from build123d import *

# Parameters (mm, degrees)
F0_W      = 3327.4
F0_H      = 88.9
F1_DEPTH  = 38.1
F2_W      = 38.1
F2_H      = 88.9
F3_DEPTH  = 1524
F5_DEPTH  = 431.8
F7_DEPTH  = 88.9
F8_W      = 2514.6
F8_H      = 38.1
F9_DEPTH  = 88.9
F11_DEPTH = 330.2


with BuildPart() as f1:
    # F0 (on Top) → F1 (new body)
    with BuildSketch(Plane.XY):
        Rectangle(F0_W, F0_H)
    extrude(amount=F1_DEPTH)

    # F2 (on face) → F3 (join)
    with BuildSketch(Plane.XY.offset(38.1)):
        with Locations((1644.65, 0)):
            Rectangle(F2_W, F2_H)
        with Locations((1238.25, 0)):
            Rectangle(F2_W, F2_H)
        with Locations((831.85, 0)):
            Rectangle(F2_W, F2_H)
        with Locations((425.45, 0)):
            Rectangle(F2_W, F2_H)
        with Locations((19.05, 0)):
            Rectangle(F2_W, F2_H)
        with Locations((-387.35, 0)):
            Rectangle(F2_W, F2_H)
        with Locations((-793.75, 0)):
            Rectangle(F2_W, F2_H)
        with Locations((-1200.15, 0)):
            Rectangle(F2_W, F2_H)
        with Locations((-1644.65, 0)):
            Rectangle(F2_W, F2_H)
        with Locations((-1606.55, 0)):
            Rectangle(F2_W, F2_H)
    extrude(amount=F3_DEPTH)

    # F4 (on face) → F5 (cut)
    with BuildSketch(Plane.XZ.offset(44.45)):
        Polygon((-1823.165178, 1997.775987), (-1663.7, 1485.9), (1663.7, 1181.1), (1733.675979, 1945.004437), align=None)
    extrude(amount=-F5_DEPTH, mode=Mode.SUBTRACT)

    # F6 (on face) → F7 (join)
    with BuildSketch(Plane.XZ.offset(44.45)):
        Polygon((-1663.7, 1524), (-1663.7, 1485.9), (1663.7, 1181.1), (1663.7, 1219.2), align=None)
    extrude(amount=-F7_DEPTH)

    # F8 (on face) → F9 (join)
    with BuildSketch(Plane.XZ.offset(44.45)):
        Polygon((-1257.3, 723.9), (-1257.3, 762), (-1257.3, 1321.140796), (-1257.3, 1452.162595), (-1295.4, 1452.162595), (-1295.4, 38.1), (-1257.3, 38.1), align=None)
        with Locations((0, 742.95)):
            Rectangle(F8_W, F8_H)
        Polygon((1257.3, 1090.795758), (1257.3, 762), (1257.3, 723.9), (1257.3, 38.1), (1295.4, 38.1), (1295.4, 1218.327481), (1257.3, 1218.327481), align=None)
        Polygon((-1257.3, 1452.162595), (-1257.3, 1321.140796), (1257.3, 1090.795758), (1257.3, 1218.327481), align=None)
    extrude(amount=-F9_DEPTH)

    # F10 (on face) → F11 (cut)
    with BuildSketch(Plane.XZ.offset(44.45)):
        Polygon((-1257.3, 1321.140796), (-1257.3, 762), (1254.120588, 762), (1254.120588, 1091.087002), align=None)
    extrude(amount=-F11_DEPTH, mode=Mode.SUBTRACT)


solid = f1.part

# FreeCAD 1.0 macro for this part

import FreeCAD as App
import Part
import Sketcher

V = App.Vector
Q = App.Units.Quantity

doc = App.newDocument("Part")
body = doc.addObject("PartDesign::Body", "Body")

# Sketch on XY plane
sketch1 = body.newObject("Sketcher::SketchObject", "Sketch")
sketch1.AttachmentSupport = (doc.getObject("XY_Plane"), [""])
sketch1.MapMode = "FlatFace"
sketch1.addGeometry(Part.LineSegment(V(-1663.7, 44.45, 0), V(-1663.7, -44.45, 0)), False)
sketch1.addGeometry(Part.LineSegment(V(-1663.7, -44.45, 0), V(1663.7, -44.45, 0)), False)
sketch1.addGeometry(Part.LineSegment(V(1663.7, -44.45, 0), V(1663.7, 44.45, 0)), False)
sketch1.addGeometry(Part.LineSegment(V(1663.7, 44.45, 0), V(-1663.7, 44.45, 0)), False)
sketch1.addConstraint(Sketcher.Constraint("Coincident", 0, 2, 1, 1))
sketch1.addConstraint(Sketcher.Constraint("Coincident", 1, 2, 2, 1))
sketch1.addConstraint(Sketcher.Constraint("Coincident", 2, 2, 3, 1))
sketch1.addConstraint(Sketcher.Constraint("Coincident", 3, 2, 0, 1))
sketch1.addConstraint(Sketcher.Constraint("Vertical", 0))
sketch1.addConstraint(Sketcher.Constraint("Horizontal", 1))
sketch1.addConstraint(Sketcher.Constraint("Vertical", 2))
sketch1.addConstraint(Sketcher.Constraint("Horizontal", 3))
sketch1.addConstraint(Sketcher.Constraint("Symmetric", 0, 2, 2, 2, -1, 1))
sketch1.addConstraint(Sketcher.Constraint("DistanceX", 1, 1, 1, 2, Q("131 in")))
sketch1.addConstraint(Sketcher.Constraint("DistanceY", 0, 2, 0, 1, Q("3.5 in")))
pad1 = body.newObject("PartDesign::Pad", "Pad")
pad1.Profile = sketch1
pad1.Length = Q("1.5 in")

# Sketch on XY plane
sketch2 = body.newObject("Sketcher::SketchObject", "Sketch001")
sketch2.AttachmentSupport = (doc.getObject("XY_Plane"), [""])
sketch2.MapMode = "FlatFace"
sketch2.AttachmentOffset = App.Placement(V(0, 0, 1.5 * 25.4), App.Rotation())
sketch2.addGeometry(Part.LineSegment(V(1625.6, 44.45, 0), V(1625.6, -44.45, 0)), False)
sketch2.addGeometry(Part.LineSegment(V(1625.6, -44.45, 0), V(1663.7, -44.45, 0)), False)
sketch2.addGeometry(Part.LineSegment(V(1663.7, -44.45, 0), V(1663.7, 44.45, 0)), False)
sketch2.addGeometry(Part.LineSegment(V(1663.7, 44.45, 0), V(1625.6, 44.45, 0)), False)
sketch2.addGeometry(Part.LineSegment(V(1219.2, 44.45, 0), V(1219.2, -44.45, 0)), False)
sketch2.addGeometry(Part.LineSegment(V(1219.2, -44.45, 0), V(1257.3, -44.45, 0)), False)
sketch2.addGeometry(Part.LineSegment(V(1257.3, -44.45, 0), V(1257.3, 44.45, 0)), False)
sketch2.addGeometry(Part.LineSegment(V(1257.3, 44.45, 0), V(1219.2, 44.45, 0)), False)
sketch2.addGeometry(Part.LineSegment(V(812.8, 44.45, 0), V(812.8, -44.45, 0)), False)
sketch2.addGeometry(Part.LineSegment(V(812.8, -44.45, 0), V(850.9, -44.45, 0)), False)
sketch2.addGeometry(Part.LineSegment(V(850.9, -44.45, 0), V(850.9, 44.45, 0)), False)
sketch2.addGeometry(Part.LineSegment(V(850.9, 44.45, 0), V(812.8, 44.45, 0)), False)
sketch2.addGeometry(Part.LineSegment(V(406.4, 44.45, 0), V(406.4, -44.45, 0)), False)
sketch2.addGeometry(Part.LineSegment(V(406.4, -44.45, 0), V(444.5, -44.45, 0)), False)
sketch2.addGeometry(Part.LineSegment(V(444.5, -44.45, 0), V(444.5, 44.45, 0)), False)
sketch2.addGeometry(Part.LineSegment(V(444.5, 44.45, 0), V(406.4, 44.45, 0)), False)
sketch2.addGeometry(Part.LineSegment(V(0, 44.45, 0), V(0, -44.45, 0)), False)
sketch2.addGeometry(Part.LineSegment(V(0, -44.45, 0), V(38.1, -44.45, 0)), False)
sketch2.addGeometry(Part.LineSegment(V(38.1, -44.45, 0), V(38.1, 44.45, 0)), False)
sketch2.addGeometry(Part.LineSegment(V(38.1, 44.45, 0), V(0, 44.45, 0)), False)
sketch2.addGeometry(Part.LineSegment(V(-406.4, 44.45, 0), V(-406.4, -44.45, 0)), False)
sketch2.addGeometry(Part.LineSegment(V(-406.4, -44.45, 0), V(-368.3, -44.45, 0)), False)
sketch2.addGeometry(Part.LineSegment(V(-368.3, -44.45, 0), V(-368.3, 44.45, 0)), False)
sketch2.addGeometry(Part.LineSegment(V(-368.3, 44.45, 0), V(-406.4, 44.45, 0)), False)
sketch2.addGeometry(Part.LineSegment(V(-812.8, 44.45, 0), V(-812.8, -44.45, 0)), False)
sketch2.addGeometry(Part.LineSegment(V(-812.8, -44.45, 0), V(-774.7, -44.45, 0)), False)
sketch2.addGeometry(Part.LineSegment(V(-774.7, -44.45, 0), V(-774.7, 44.45, 0)), False)
sketch2.addGeometry(Part.LineSegment(V(-774.7, 44.45, 0), V(-812.8, 44.45, 0)), False)
sketch2.addGeometry(Part.LineSegment(V(-1219.2, 44.45, 0), V(-1219.2, -44.45, 0)), False)
sketch2.addGeometry(Part.LineSegment(V(-1219.2, -44.45, 0), V(-1181.1, -44.45, 0)), False)
sketch2.addGeometry(Part.LineSegment(V(-1181.1, -44.45, 0), V(-1181.1, 44.45, 0)), False)
sketch2.addGeometry(Part.LineSegment(V(-1181.1, 44.45, 0), V(-1219.2, 44.45, 0)), False)
sketch2.addGeometry(Part.LineSegment(V(-1663.7, 44.45, 0), V(-1663.7, -44.45, 0)), False)
sketch2.addGeometry(Part.LineSegment(V(-1663.7, -44.45, 0), V(-1587.5, -44.45, 0)), False)
sketch2.addGeometry(Part.LineSegment(V(-1587.5, -44.45, 0), V(-1587.5, 44.45, 0)), False)
sketch2.addGeometry(Part.LineSegment(V(-1587.5, 44.45, 0), V(-1663.7, 44.45, 0)), False)
sketch2.addConstraint(Sketcher.Constraint("Coincident", 0, 2, 1, 1))
sketch2.addConstraint(Sketcher.Constraint("Coincident", 1, 2, 2, 1))
sketch2.addConstraint(Sketcher.Constraint("Coincident", 2, 2, 3, 1))
sketch2.addConstraint(Sketcher.Constraint("Coincident", 3, 2, 0, 1))
sketch2.addConstraint(Sketcher.Constraint("Coincident", 4, 2, 5, 1))
sketch2.addConstraint(Sketcher.Constraint("Coincident", 5, 2, 6, 1))
sketch2.addConstraint(Sketcher.Constraint("Coincident", 6, 2, 7, 1))
sketch2.addConstraint(Sketcher.Constraint("Coincident", 7, 2, 4, 1))
sketch2.addConstraint(Sketcher.Constraint("Coincident", 8, 2, 9, 1))
sketch2.addConstraint(Sketcher.Constraint("Coincident", 9, 2, 10, 1))
sketch2.addConstraint(Sketcher.Constraint("Coincident", 10, 2, 11, 1))
sketch2.addConstraint(Sketcher.Constraint("Coincident", 11, 2, 8, 1))
sketch2.addConstraint(Sketcher.Constraint("Coincident", 12, 2, 13, 1))
sketch2.addConstraint(Sketcher.Constraint("Coincident", 13, 2, 14, 1))
sketch2.addConstraint(Sketcher.Constraint("Coincident", 14, 2, 15, 1))
sketch2.addConstraint(Sketcher.Constraint("Coincident", 15, 2, 12, 1))
sketch2.addConstraint(Sketcher.Constraint("Coincident", 16, 2, 17, 1))
sketch2.addConstraint(Sketcher.Constraint("Coincident", 17, 2, 18, 1))
sketch2.addConstraint(Sketcher.Constraint("Coincident", 18, 2, 19, 1))
sketch2.addConstraint(Sketcher.Constraint("Coincident", 19, 2, 16, 1))
sketch2.addConstraint(Sketcher.Constraint("Coincident", 20, 2, 21, 1))
sketch2.addConstraint(Sketcher.Constraint("Coincident", 21, 2, 22, 1))
sketch2.addConstraint(Sketcher.Constraint("Coincident", 22, 2, 23, 1))
sketch2.addConstraint(Sketcher.Constraint("Coincident", 23, 2, 20, 1))
sketch2.addConstraint(Sketcher.Constraint("Coincident", 24, 2, 25, 1))
sketch2.addConstraint(Sketcher.Constraint("Coincident", 25, 2, 26, 1))
sketch2.addConstraint(Sketcher.Constraint("Coincident", 26, 2, 27, 1))
sketch2.addConstraint(Sketcher.Constraint("Coincident", 27, 2, 24, 1))
sketch2.addConstraint(Sketcher.Constraint("Coincident", 28, 2, 29, 1))
sketch2.addConstraint(Sketcher.Constraint("Coincident", 29, 2, 30, 1))
sketch2.addConstraint(Sketcher.Constraint("Coincident", 30, 2, 31, 1))
sketch2.addConstraint(Sketcher.Constraint("Coincident", 31, 2, 28, 1))
sketch2.addConstraint(Sketcher.Constraint("Coincident", 32, 2, 33, 1))
sketch2.addConstraint(Sketcher.Constraint("Coincident", 33, 2, 34, 1))
sketch2.addConstraint(Sketcher.Constraint("Coincident", 34, 2, 35, 1))
sketch2.addConstraint(Sketcher.Constraint("Coincident", 35, 2, 32, 1))
sketch2.addConstraint(Sketcher.Constraint("Vertical", 0))
sketch2.addConstraint(Sketcher.Constraint("Horizontal", 1))
sketch2.addConstraint(Sketcher.Constraint("Vertical", 2))
sketch2.addConstraint(Sketcher.Constraint("Horizontal", 3))
sketch2.addConstraint(Sketcher.Constraint("Vertical", 4))
sketch2.addConstraint(Sketcher.Constraint("Horizontal", 5))
sketch2.addConstraint(Sketcher.Constraint("Vertical", 6))
sketch2.addConstraint(Sketcher.Constraint("Horizontal", 7))
sketch2.addConstraint(Sketcher.Constraint("Vertical", 8))
sketch2.addConstraint(Sketcher.Constraint("Horizontal", 9))
sketch2.addConstraint(Sketcher.Constraint("Vertical", 10))
sketch2.addConstraint(Sketcher.Constraint("Horizontal", 11))
sketch2.addConstraint(Sketcher.Constraint("Vertical", 12))
sketch2.addConstraint(Sketcher.Constraint("Horizontal", 13))
sketch2.addConstraint(Sketcher.Constraint("Vertical", 14))
sketch2.addConstraint(Sketcher.Constraint("Horizontal", 15))
sketch2.addConstraint(Sketcher.Constraint("Vertical", 16))
sketch2.addConstraint(Sketcher.Constraint("Horizontal", 17))
sketch2.addConstraint(Sketcher.Constraint("Vertical", 18))
sketch2.addConstraint(Sketcher.Constraint("Horizontal", 19))
sketch2.addConstraint(Sketcher.Constraint("Vertical", 20))
sketch2.addConstraint(Sketcher.Constraint("Horizontal", 21))
sketch2.addConstraint(Sketcher.Constraint("Vertical", 22))
sketch2.addConstraint(Sketcher.Constraint("Horizontal", 23))
sketch2.addConstraint(Sketcher.Constraint("Vertical", 24))
sketch2.addConstraint(Sketcher.Constraint("Horizontal", 25))
sketch2.addConstraint(Sketcher.Constraint("Vertical", 26))
sketch2.addConstraint(Sketcher.Constraint("Horizontal", 27))
sketch2.addConstraint(Sketcher.Constraint("Vertical", 28))
sketch2.addConstraint(Sketcher.Constraint("Horizontal", 29))
sketch2.addConstraint(Sketcher.Constraint("Vertical", 30))
sketch2.addConstraint(Sketcher.Constraint("Horizontal", 31))
sketch2.addConstraint(Sketcher.Constraint("Vertical", 32))
sketch2.addConstraint(Sketcher.Constraint("Horizontal", 33))
sketch2.addConstraint(Sketcher.Constraint("Vertical", 34))
sketch2.addConstraint(Sketcher.Constraint("Horizontal", 35))
sketch2.addConstraint(Sketcher.Constraint("Symmetric", 16, 2, 19, 2, -1, 1))
sketch2.addConstraint(Sketcher.Constraint("Symmetric", 15, 2, 20, 2, -1, 1))
sketch2.addConstraint(Sketcher.Constraint("Symmetric", 11, 2, 24, 2, -1, 1))
sketch2.addConstraint(Sketcher.Constraint("Symmetric", 7, 2, 28, 2, -1, 1))
sketch2.addConstraint(Sketcher.Constraint("Symmetric", 2, 2, 32, 2, -1, 1))
sketch2.addConstraint(Sketcher.Constraint("Horizontal", 1, 2, 4, 2))
sketch2.addConstraint(Sketcher.Constraint("Horizontal", 3, 2, 6, 2))
sketch2.addConstraint(Sketcher.Constraint("Horizontal", 5, 2, 8, 2))
sketch2.addConstraint(Sketcher.Constraint("Horizontal", 7, 2, 10, 2))
sketch2.addConstraint(Sketcher.Constraint("Horizontal", 9, 2, 12, 2))
sketch2.addConstraint(Sketcher.Constraint("Horizontal", 11, 2, 14, 2))
sketch2.addConstraint(Sketcher.Constraint("Horizontal", 13, 2, 16, 2))
sketch2.addConstraint(Sketcher.Constraint("Horizontal", 15, 2, 18, 2))
sketch2.addConstraint(Sketcher.Constraint("Horizontal", 19, 2, 22, 2))
sketch2.addConstraint(Sketcher.Constraint("Horizontal", 23, 2, 26, 2))
sketch2.addConstraint(Sketcher.Constraint("Horizontal", 27, 2, 30, 2))
sketch2.addConstraint(Sketcher.Constraint("Horizontal", 31, 2, 34, 2))
sketch2.addConstraint(Sketcher.Constraint("Equal", 3, 5))
sketch2.addConstraint(Sketcher.Constraint("Equal", 7, 9))
sketch2.addConstraint(Sketcher.Constraint("Equal", 11, 13))
sketch2.addConstraint(Sketcher.Constraint("Equal", 15, 17))
sketch2.addConstraint(Sketcher.Constraint("Equal", 19, 21))
sketch2.addConstraint(Sketcher.Constraint("Equal", 23, 25))
sketch2.addConstraint(Sketcher.Constraint("Equal", 27, 29))
sketch2.addConstraint(Sketcher.Constraint("DistanceX", 33, 1, 33, 2, Q("3 in")))
sketch2.addConstraint(Sketcher.Constraint("DistanceX", 1, 1, 1, 2, Q("1.5 in")))
sketch2.addConstraint(Sketcher.Constraint("DistanceY", 0, 2, 0, 1, Q("3.5 in")))
sketch2.addConstraint(Sketcher.Constraint("DistanceX", -1, 1, 0, 2, Q("64 in")))
sketch2.addConstraint(Sketcher.Constraint("DistanceX", -1, 1, 4, 2, Q("48 in")))
sketch2.addConstraint(Sketcher.Constraint("DistanceX", -1, 1, 8, 2, Q("32 in")))
sketch2.addConstraint(Sketcher.Constraint("DistanceX", -1, 1, 12, 2, Q("16 in")))
pad2 = body.newObject("PartDesign::Pad", "Pad001")
pad2.Profile = sketch2
pad2.Length = Q("60 in")

# Sketch on XZ plane
sketch3 = body.newObject("Sketcher::SketchObject", "Sketch002")
sketch3.AttachmentSupport = (doc.getObject("XZ_Plane"), [""])
sketch3.MapMode = "FlatFace"
sketch3.AttachmentOffset = App.Placement(V(0, 0, 1.75 * 25.4), App.Rotation())
sketch3.addGeometry(Part.LineSegment(V(-1823.165178, 1997.775987, 0), V(-1663.7, 1485.9, 0)), False)
sketch3.addGeometry(Part.LineSegment(V(-1663.7, 1485.9, 0), V(1663.7, 1181.1, 0)), False)
sketch3.addGeometry(Part.LineSegment(V(1663.7, 1181.1, 0), V(1733.675979, 1945.004437, 0)), False)
sketch3.addGeometry(Part.LineSegment(V(1733.675979, 1945.004437, 0), V(-1823.165178, 1997.775987, 0)), False)
sketch3.addConstraint(Sketcher.Constraint("Coincident", 0, 2, 1, 1))
sketch3.addConstraint(Sketcher.Constraint("Coincident", 1, 2, 2, 1))
sketch3.addConstraint(Sketcher.Constraint("Coincident", 2, 2, 3, 1))
sketch3.addConstraint(Sketcher.Constraint("Coincident", 3, 2, 0, 1))
sketch3.addConstraint(Sketcher.Constraint("Perpendicular", 1, 2))
sketch3.addConstraint(Sketcher.Constraint("DistanceX", 0, 2, 1, 2, Q("131 in")))
sketch3.addConstraint(Sketcher.Constraint("DistanceY", 1, 2, 0, 2, Q("12 in")))
sketch3.addConstraint(Sketcher.Constraint("DistanceX", 0, 2, -1, 1, Q("65.5 in")))
sketch3.addConstraint(Sketcher.Constraint("DistanceY", -1, 1, 0, 2, Q("58.5 in")))
sketch3.addConstraint(Sketcher.Constraint("Angle", 3, Q("179.149986 deg")))
sketch3.addConstraint(Sketcher.Constraint("Distance", 2, Q("767.102748 mm")))
sketch3.addConstraint(Sketcher.Constraint("Distance", 3, Q("3557.232612 mm")))
pocket1 = body.newObject("PartDesign::Pocket", "Pocket")
pocket1.Profile = sketch3
pocket1.Length = Q("17 in")

# Sketch on XZ plane
sketch4 = body.newObject("Sketcher::SketchObject", "Sketch003")
sketch4.AttachmentSupport = (doc.getObject("XZ_Plane"), [""])
sketch4.MapMode = "FlatFace"
sketch4.AttachmentOffset = App.Placement(V(0, 0, 1.75 * 25.4), App.Rotation())
sketch4.addGeometry(Part.LineSegment(V(-1663.7, 1524, 0), V(-1663.7, 1485.9, 0)), False)
sketch4.addGeometry(Part.LineSegment(V(-1663.7, 1485.9, 0), V(1663.7, 1181.1, 0)), False)
sketch4.addGeometry(Part.LineSegment(V(1663.7, 1181.1, 0), V(1663.7, 1219.2, 0)), False)
sketch4.addGeometry(Part.LineSegment(V(1663.7, 1219.2, 0), V(-1663.7, 1524, 0)), False)
sketch4.addConstraint(Sketcher.Constraint("Coincident", 0, 2, 1, 1))
sketch4.addConstraint(Sketcher.Constraint("Coincident", 1, 2, 2, 1))
sketch4.addConstraint(Sketcher.Constraint("Coincident", 2, 2, 3, 1))
sketch4.addConstraint(Sketcher.Constraint("Coincident", 3, 2, 0, 1))
sketch4.addConstraint(Sketcher.Constraint("Vertical", 0))
sketch4.addConstraint(Sketcher.Constraint("Vertical", 2))
sketch4.addConstraint(Sketcher.Constraint("Parallel", 1, 3))
sketch4.addConstraint(Sketcher.Constraint("DistanceY", 0, 2, 0, 1, Q("1.5 in")))
sketch4.addConstraint(Sketcher.Constraint("DistanceY", -1, 1, 2, 2, Q("48 in")))
sketch4.addConstraint(Sketcher.Constraint("DistanceY", -1, 1, 3, 2, Q("60 in")))
sketch4.addConstraint(Sketcher.Constraint("DistanceX", 0, 2, 1, 2, Q("131 in")))
sketch4.addConstraint(Sketcher.Constraint("DistanceX", 0, 2, -1, 1, Q("65.5 in")))
pad3 = body.newObject("PartDesign::Pad", "Pad002")
pad3.Profile = sketch4
pad3.Length = Q("3.5 in")
pad3.Reversed = True

# Sketch on XZ plane
sketch5 = body.newObject("Sketcher::SketchObject", "Sketch004")
sketch5.AttachmentSupport = (doc.getObject("XZ_Plane"), [""])
sketch5.MapMode = "FlatFace"
sketch5.AttachmentOffset = App.Placement(V(0, 0, 1.75 * 25.4), App.Rotation())
sketch5.addGeometry(Part.LineSegment(V(-1257.3, 1452.162595, 0), V(-1295.4, 1452.162595, 0)), False)
sketch5.addGeometry(Part.LineSegment(V(-1295.4, 1452.162595, 0), V(-1295.4, 38.1, 0)), False)
sketch5.addGeometry(Part.LineSegment(V(-1295.4, 38.1, 0), V(-1257.3, 38.1, 0)), False)
sketch5.addGeometry(Part.LineSegment(V(-1257.3, 38.1, 0), V(-1257.3, 723.9, 0)), False)
sketch5.addGeometry(Part.LineSegment(V(-1257.3, 723.9, 0), V(1257.3, 723.9, 0)), False)
sketch5.addGeometry(Part.LineSegment(V(1257.3, 723.9, 0), V(1257.3, 38.1, 0)), False)
sketch5.addGeometry(Part.LineSegment(V(1257.3, 38.1, 0), V(1295.4, 38.1, 0)), False)
sketch5.addGeometry(Part.LineSegment(V(1295.4, 38.1, 0), V(1295.4, 1218.327481, 0)), False)
sketch5.addGeometry(Part.LineSegment(V(1295.4, 1218.327481, 0), V(1257.3, 1218.327481, 0)), False)
sketch5.addGeometry(Part.LineSegment(V(1257.3, 1218.327481, 0), V(-1257.3, 1452.162595, 0)), False)
sketch5.addGeometry(Part.LineSegment(V(1257.3, 1090.795758, 0), V(1257.3, 762, 0)), False)
sketch5.addGeometry(Part.LineSegment(V(1257.3, 762, 0), V(-1257.3, 762, 0)), False)
sketch5.addGeometry(Part.LineSegment(V(-1257.3, 762, 0), V(-1257.3, 1321.140796, 0)), False)
sketch5.addGeometry(Part.LineSegment(V(-1257.3, 1321.140796, 0), V(1257.3, 1090.795758, 0)), False)
sketch5.addConstraint(Sketcher.Constraint("Coincident", 0, 2, 1, 1))
sketch5.addConstraint(Sketcher.Constraint("Coincident", 1, 2, 2, 1))
sketch5.addConstraint(Sketcher.Constraint("Coincident", 2, 2, 3, 1))
sketch5.addConstraint(Sketcher.Constraint("Coincident", 3, 2, 4, 1))
sketch5.addConstraint(Sketcher.Constraint("Coincident", 4, 2, 5, 1))
sketch5.addConstraint(Sketcher.Constraint("Coincident", 5, 2, 6, 1))
sketch5.addConstraint(Sketcher.Constraint("Coincident", 6, 2, 7, 1))
sketch5.addConstraint(Sketcher.Constraint("Coincident", 7, 2, 8, 1))
sketch5.addConstraint(Sketcher.Constraint("Coincident", 8, 2, 9, 1))
sketch5.addConstraint(Sketcher.Constraint("Coincident", 9, 2, 0, 1))
sketch5.addConstraint(Sketcher.Constraint("Coincident", 10, 2, 11, 1))
sketch5.addConstraint(Sketcher.Constraint("Coincident", 11, 2, 12, 1))
sketch5.addConstraint(Sketcher.Constraint("Coincident", 12, 2, 13, 1))
sketch5.addConstraint(Sketcher.Constraint("Coincident", 13, 2, 10, 1))
sketch5.addConstraint(Sketcher.Constraint("Horizontal", 0))
sketch5.addConstraint(Sketcher.Constraint("Vertical", 1))
sketch5.addConstraint(Sketcher.Constraint("Horizontal", 2))
sketch5.addConstraint(Sketcher.Constraint("Vertical", 3))
sketch5.addConstraint(Sketcher.Constraint("Horizontal", 4))
sketch5.addConstraint(Sketcher.Constraint("Vertical", 5))
sketch5.addConstraint(Sketcher.Constraint("Horizontal", 6))
sketch5.addConstraint(Sketcher.Constraint("Vertical", 7))
sketch5.addConstraint(Sketcher.Constraint("Horizontal", 8))
sketch5.addConstraint(Sketcher.Constraint("Vertical", 10))
sketch5.addConstraint(Sketcher.Constraint("Horizontal", 11))
sketch5.addConstraint(Sketcher.Constraint("Vertical", 12))
sketch5.addConstraint(Sketcher.Constraint("Symmetric", 2, 2, 5, 2, -2))
sketch5.addConstraint(Sketcher.Constraint("Vertical", 5, 2, 8, 2))
sketch5.addConstraint(Sketcher.Constraint("Vertical", 3, 2, 9, 2))
sketch5.addConstraint(Sketcher.Constraint("Vertical", 8, 2, 10, 2))
sketch5.addConstraint(Sketcher.Constraint("Vertical", 9, 2, 11, 2))
sketch5.addConstraint(Sketcher.Constraint("Equal", 2, 6))
sketch5.addConstraint(Sketcher.Constraint("DistanceX", 4, 1, 4, 2, Q("99 in")))
sketch5.addConstraint(Sketcher.Constraint("DistanceY", 3, 1, 3, 2, Q("27 in")))
sketch5.addConstraint(Sketcher.Constraint("DistanceX", 0, 2, 0, 1, Q("1.5 in")))
sketch5.addConstraint(Sketcher.Constraint("DistanceY", -1, 1, 10, 2, Q("30 in")))
sketch5.addConstraint(Sketcher.Constraint("DistanceY", -1, 1, 1, 2, Q("1.5 in")))
sketch5.addConstraint(Sketcher.Constraint("DistanceY", 7, 1, 7, 2, Q("1180.227481 mm")))
sketch5.addConstraint(Sketcher.Constraint("DistanceY", 10, 2, 10, 1, Q("328.795758 mm")))
sketch5.addConstraint(Sketcher.Constraint("DistanceY", 12, 2, 9, 2, Q("131.021799 mm")))
sketch5.addConstraint(Sketcher.Constraint("DistanceY", 1, 2, 1, 1, Q("1414.062595 mm")))
pad4 = body.newObject("PartDesign::Pad", "Pad003")
pad4.Profile = sketch5
pad4.Length = Q("3.5 in")
pad4.Reversed = True

# Sketch on XZ plane
sketch6 = body.newObject("Sketcher::SketchObject", "Sketch005")
sketch6.AttachmentSupport = (doc.getObject("XZ_Plane"), [""])
sketch6.MapMode = "FlatFace"
sketch6.AttachmentOffset = App.Placement(V(0, 0, 1.75 * 25.4), App.Rotation())
sketch6.addGeometry(Part.LineSegment(V(-1257.3, 1321.140796, 0), V(-1257.3, 762, 0)), False)
sketch6.addGeometry(Part.LineSegment(V(-1257.3, 762, 0), V(1254.120588, 762, 0)), False)
sketch6.addGeometry(Part.LineSegment(V(1254.120588, 762, 0), V(1254.120588, 1091.087002, 0)), False)
sketch6.addGeometry(Part.LineSegment(V(1254.120588, 1091.087002, 0), V(-1257.3, 1321.140796, 0)), False)
sketch6.addConstraint(Sketcher.Constraint("Coincident", 0, 2, 1, 1))
sketch6.addConstraint(Sketcher.Constraint("Coincident", 1, 2, 2, 1))
sketch6.addConstraint(Sketcher.Constraint("Coincident", 2, 2, 3, 1))
sketch6.addConstraint(Sketcher.Constraint("Coincident", 3, 2, 0, 1))
sketch6.addConstraint(Sketcher.Constraint("Vertical", 0))
sketch6.addConstraint(Sketcher.Constraint("Horizontal", 1))
sketch6.addConstraint(Sketcher.Constraint("Vertical", 2))
sketch6.addConstraint(Sketcher.Constraint("DistanceY", -1, 1, 0, 2, Q("30 in")))
sketch6.addConstraint(Sketcher.Constraint("DistanceX", 0, 2, -1, 1, Q("49.5 in")))
sketch6.addConstraint(Sketcher.Constraint("DistanceY", 2, 1, 2, 2, Q("329.087002 mm")))
sketch6.addConstraint(Sketcher.Constraint("Distance", 3, Q("2521.935391 mm")))
sketch6.addConstraint(Sketcher.Constraint("DistanceX", 1, 1, 1, 2, Q("2511.420588 mm")))
pocket2 = body.newObject("PartDesign::Pocket", "Pocket001")
pocket2.Profile = sketch6
pocket2.Length = Q("13 in")

doc.recompute()
